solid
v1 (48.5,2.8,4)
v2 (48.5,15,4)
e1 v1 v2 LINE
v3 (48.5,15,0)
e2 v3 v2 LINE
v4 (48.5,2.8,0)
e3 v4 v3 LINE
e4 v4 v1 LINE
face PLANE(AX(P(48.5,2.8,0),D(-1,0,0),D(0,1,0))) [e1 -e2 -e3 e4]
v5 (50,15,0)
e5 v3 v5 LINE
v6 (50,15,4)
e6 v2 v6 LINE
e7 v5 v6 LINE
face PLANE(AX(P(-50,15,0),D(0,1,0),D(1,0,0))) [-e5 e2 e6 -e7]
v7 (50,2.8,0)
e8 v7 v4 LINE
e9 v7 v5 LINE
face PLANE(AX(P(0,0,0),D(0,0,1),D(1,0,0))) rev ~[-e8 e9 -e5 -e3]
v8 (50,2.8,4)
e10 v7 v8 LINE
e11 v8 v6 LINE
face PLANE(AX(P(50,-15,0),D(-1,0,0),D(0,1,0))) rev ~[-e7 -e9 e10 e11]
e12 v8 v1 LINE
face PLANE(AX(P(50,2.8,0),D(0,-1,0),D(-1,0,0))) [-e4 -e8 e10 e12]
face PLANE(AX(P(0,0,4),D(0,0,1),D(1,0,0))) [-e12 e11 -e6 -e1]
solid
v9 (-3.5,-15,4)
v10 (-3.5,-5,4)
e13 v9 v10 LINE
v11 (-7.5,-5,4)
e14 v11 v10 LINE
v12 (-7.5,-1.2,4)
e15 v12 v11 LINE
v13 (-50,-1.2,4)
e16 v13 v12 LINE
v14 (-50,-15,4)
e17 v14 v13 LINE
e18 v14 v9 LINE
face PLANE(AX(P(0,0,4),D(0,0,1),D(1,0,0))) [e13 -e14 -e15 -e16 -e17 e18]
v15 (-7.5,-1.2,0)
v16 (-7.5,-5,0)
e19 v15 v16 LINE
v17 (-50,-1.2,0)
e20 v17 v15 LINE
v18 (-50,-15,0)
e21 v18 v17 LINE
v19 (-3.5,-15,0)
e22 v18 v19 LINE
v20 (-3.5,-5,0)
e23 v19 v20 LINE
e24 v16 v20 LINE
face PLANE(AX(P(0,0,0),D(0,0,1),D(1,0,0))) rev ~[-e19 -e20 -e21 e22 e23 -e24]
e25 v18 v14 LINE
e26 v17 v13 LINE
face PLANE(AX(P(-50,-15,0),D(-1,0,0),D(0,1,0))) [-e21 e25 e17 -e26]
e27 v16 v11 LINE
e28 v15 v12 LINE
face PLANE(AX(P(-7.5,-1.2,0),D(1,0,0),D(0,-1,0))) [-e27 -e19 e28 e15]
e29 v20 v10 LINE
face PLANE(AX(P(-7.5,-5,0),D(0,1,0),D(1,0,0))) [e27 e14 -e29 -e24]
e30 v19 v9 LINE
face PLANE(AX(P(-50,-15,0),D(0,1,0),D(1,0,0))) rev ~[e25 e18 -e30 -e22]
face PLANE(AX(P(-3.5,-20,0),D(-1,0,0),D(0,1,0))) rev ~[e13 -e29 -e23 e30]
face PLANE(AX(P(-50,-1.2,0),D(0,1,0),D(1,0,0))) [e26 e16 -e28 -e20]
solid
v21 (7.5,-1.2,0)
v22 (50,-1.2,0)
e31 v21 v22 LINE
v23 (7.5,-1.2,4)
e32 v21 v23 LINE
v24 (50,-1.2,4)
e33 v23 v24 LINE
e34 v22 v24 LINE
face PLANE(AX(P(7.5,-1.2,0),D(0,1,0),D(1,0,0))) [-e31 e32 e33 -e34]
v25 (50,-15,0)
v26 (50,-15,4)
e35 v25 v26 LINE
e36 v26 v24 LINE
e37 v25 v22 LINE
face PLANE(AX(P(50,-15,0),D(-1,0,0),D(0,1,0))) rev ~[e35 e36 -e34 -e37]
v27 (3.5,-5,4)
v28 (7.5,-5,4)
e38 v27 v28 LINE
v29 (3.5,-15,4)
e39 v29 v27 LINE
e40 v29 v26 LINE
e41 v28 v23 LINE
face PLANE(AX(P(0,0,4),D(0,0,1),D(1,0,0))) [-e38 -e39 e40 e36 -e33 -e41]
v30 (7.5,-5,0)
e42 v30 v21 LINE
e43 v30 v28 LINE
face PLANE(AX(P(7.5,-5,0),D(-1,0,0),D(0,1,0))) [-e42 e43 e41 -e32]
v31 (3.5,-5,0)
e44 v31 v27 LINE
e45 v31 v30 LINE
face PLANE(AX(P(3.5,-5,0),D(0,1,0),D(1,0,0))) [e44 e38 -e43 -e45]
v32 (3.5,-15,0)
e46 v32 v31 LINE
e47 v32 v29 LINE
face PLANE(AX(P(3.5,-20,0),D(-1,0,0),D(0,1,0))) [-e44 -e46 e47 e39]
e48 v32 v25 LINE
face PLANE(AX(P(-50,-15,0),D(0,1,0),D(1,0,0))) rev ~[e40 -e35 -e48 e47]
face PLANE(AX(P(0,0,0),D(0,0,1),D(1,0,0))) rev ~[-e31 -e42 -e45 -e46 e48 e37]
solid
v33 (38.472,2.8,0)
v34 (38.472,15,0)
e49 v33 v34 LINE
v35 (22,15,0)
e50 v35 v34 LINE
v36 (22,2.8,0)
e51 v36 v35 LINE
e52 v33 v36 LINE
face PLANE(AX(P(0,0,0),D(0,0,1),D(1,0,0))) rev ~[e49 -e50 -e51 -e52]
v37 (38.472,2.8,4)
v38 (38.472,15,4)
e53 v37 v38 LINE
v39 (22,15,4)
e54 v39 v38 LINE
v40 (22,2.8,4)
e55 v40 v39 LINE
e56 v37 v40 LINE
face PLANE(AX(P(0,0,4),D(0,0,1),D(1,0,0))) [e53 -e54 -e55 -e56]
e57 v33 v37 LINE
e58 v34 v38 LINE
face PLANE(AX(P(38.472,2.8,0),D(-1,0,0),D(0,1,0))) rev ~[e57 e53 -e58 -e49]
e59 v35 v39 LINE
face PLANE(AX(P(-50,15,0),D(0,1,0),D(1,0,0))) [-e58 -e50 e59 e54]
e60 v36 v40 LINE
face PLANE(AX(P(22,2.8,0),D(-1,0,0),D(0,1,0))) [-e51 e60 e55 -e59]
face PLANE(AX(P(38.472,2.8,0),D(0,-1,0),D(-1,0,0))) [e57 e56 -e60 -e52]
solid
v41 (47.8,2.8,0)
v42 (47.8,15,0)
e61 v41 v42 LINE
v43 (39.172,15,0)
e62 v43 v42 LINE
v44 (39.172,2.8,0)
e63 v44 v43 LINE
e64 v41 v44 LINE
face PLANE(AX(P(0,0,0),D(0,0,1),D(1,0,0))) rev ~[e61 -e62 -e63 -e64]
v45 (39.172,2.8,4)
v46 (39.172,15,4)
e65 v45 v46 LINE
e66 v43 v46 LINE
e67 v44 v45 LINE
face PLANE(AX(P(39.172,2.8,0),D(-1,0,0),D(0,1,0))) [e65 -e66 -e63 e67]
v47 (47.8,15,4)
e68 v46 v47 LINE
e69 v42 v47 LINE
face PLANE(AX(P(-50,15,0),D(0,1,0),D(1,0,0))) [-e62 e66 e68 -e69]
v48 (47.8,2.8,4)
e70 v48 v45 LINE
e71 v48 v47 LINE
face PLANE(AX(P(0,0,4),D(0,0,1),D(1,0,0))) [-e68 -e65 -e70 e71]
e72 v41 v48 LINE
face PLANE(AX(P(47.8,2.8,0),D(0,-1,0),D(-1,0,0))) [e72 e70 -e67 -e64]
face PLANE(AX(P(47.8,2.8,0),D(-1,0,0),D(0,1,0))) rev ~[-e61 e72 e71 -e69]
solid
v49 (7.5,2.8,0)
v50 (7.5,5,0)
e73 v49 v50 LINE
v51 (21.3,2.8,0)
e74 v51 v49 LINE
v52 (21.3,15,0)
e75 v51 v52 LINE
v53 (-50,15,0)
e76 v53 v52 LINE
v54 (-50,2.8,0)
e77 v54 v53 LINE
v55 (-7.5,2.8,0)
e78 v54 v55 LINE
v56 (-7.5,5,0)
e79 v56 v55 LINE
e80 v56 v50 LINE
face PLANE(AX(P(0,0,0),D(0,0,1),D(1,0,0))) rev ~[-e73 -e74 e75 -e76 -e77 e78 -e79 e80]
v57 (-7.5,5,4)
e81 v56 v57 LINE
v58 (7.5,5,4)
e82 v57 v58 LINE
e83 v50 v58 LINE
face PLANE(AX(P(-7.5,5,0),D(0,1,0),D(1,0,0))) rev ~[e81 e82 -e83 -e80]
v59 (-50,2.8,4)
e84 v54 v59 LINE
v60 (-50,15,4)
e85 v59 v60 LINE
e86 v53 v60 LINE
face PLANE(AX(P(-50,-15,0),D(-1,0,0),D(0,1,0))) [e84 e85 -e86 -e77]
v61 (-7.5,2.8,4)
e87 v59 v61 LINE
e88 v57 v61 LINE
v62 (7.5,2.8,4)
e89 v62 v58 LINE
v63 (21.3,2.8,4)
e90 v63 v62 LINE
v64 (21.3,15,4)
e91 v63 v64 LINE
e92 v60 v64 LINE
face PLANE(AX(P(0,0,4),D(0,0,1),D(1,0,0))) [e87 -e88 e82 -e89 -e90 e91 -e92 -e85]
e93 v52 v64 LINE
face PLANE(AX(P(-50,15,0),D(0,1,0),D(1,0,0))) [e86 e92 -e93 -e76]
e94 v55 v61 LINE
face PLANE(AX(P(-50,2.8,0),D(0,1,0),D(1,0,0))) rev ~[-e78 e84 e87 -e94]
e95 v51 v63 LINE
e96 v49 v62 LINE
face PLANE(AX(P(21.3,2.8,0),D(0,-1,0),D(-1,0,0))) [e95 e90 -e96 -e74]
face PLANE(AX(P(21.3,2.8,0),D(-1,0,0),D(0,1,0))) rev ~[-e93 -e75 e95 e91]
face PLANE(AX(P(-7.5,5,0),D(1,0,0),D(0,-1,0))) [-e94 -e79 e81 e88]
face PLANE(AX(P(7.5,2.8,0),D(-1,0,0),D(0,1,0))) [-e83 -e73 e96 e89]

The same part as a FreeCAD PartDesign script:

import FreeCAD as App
import Part
import Sketcher
from FreeCAD import Vector
Q = App.Units.Quantity


def add_polygon(sketch, points):
    """Adds a closed chain of lines whose ends are joined by coincident constraints."""
    first, n = sketch.GeometryCount, len(points)
    for a, b in zip(points, points[1:] + points[:1]):
        sketch.addGeometry(Part.LineSegment(App.Vector(*a, 0), App.Vector(*b, 0)), False)
    for i in range(n):
        sketch.addConstraint(Sketcher.Constraint("Coincident", first + i, 2, first + (i + 1) % n, 1))

doc = App.newDocument("Part")
body = doc.addObject("PartDesign::Body", "Body")
body.AllowCompound = True

# Sketch on XY plane
sketch1 = doc.addObject("Sketcher::SketchObject", "Sketch")
body.addObject(sketch1)
sketch1.AttachmentSupport = (doc.XY_Plane, [""])
sketch1.MapMode = "FlatFace"
add_polygon(sketch1, [(-50, 15), (-50, -15), (50, -15), (50, 15)])  # lines 0-3
sketch1.addConstraint([
    Sketcher.Constraint("Vertical", 0),
    Sketcher.Constraint("Horizontal", 1),
    Sketcher.Constraint("Vertical", 2),
    Sketcher.Constraint("Horizontal", 3),
    Sketcher.Constraint("Symmetric", 0, 2, 2, 2, -1, 1),
    Sketcher.Constraint("DistanceX", 1, 1, 1, 2, Q("100 mm")),
    Sketcher.Constraint("DistanceY", 0, 2, 0, 1, Q("30 mm")),
])
pad1 = doc.addObject("PartDesign::Pad", "Pad")
body.addObject(pad1)
pad1.Profile = sketch1
pad1.Length = 4

# Sketch on XY plane
sketch2 = doc.addObject("Sketcher::SketchObject", "Sketch001")
body.addObject(sketch2)
sketch2.AttachmentSupport = (doc.XY_Plane, [""])
sketch2.MapMode = "FlatFace"
add_polygon(sketch2, [(7.5, -5), (7.5, -1.2), (50, -1.2), (50, 2.8), (48.5, 2.8), (48.5, 38.416307), (47.8, 38.416307), (47.8, 2.8), (39.172, 2.8), (39.172, 25.304163), (38.472, 25.304163), (38.472, 2.8), (22, 2.8), (22, 31.788547), (21.3, 31.788547), (21.3, 2.8), (7.5, 2.8), (7.5, 5), (-7.5, 5), (-7.5, 2.8), (-50, 2.8), (-50, -1.2), (-7.5, -1.2), (-7.5, -5), (-3.5, -5), (-3.5, -20), (3.5, -20), (3.5, -5)])  # lines 0-27
sketch2.addConstraint([
    Sketcher.Constraint("Vertical", 0),
    Sketcher.Constraint("Horizontal", 1),
    Sketcher.Constraint("Vertical", 2),
    Sketcher.Constraint("Horizontal", 3),
    Sketcher.Constraint("Vertical", 4),
    Sketcher.Constraint("Horizontal", 5),
    Sketcher.Constraint("Vertical", 6),
    Sketcher.Constraint("Horizontal", 7),
    Sketcher.Constraint("Vertical", 8),
    Sketcher.Constraint("Horizontal", 9),
    Sketcher.Constraint("Vertical", 10),
    Sketcher.Constraint("Horizontal", 11),
    Sketcher.Constraint("Vertical", 12),
    Sketcher.Constraint("Horizontal", 13),
    Sketcher.Constraint("Vertical", 14),
    Sketcher.Constraint("Horizontal", 15),
    Sketcher.Constraint("Vertical", 16),
    Sketcher.Constraint("Horizontal", 17),
    Sketcher.Constraint("Vertical", 18),
    Sketcher.Constraint("Horizontal", 19),
    Sketcher.Constraint("Vertical", 20),
    Sketcher.Constraint("Horizontal", 21),
    Sketcher.Constraint("Vertical", 22),
    Sketcher.Constraint("Horizontal", 23),
    Sketcher.Constraint("Vertical", 24),
    Sketcher.Constraint("Horizontal", 25),
    Sketcher.Constraint("Vertical", 26),
    Sketcher.Constraint("Horizontal", 27),
    Sketcher.Constraint("Symmetric", 16, 2, 22, 2, -1, 1),
    Sketcher.Constraint("Symmetric", 17, 2, 27, 2, -1, 1),
    Sketcher.Constraint("Symmetric", 15, 2, 18, 2, -2),
    Sketcher.Constraint("Symmetric", 2, 2, 19, 2, -2),
    Sketcher.Constraint("Horizontal", 3, 2, 6, 2),
    Sketcher.Constraint("Horizontal", 7, 2, 10, 2),
    Sketcher.Constraint("Horizontal", 1, 2, 20, 2),
    Sketcher.Constraint("Equal", 5, 9),
    Sketcher.Constraint("Equal", 9, 13),
    Sketcher.Constraint("Equal", 23, 27),
    Sketcher.Constraint("Equal", 27, 2),
    Sketcher.Constraint("Equal", 17, 24),
    Sketcher.Constraint("DistanceX", 17, 2, 17, 1, Q("15 mm")),
    Sketcher.Constraint("DistanceX", 23, 1, 23, 2, Q("4 mm")),
    Sketcher.Constraint("DistanceX", 1, 1, 1, 2, Q("42.5 mm")),
    Sketcher.Constraint("DistanceX", 3, 2, 3, 1, Q("1.5 mm")),
    Sketcher.Constraint("DistanceX", 5, 2, 5, 1, Q("0.7 mm")),
    Sketcher.Constraint("DistanceX", 15, 2, 15, 1, Q("13.8 mm")),
    Sketcher.Constraint("DistanceY", 0, 1, 0, 2, Q("3.8 mm")),
    Sketcher.Constraint("DistanceY", 16, 1, 16, 2, Q("2.2 mm")),
    Sketcher.Constraint("DistanceX", 7, 2, 7, 1, Q("8.628 mm")),
    Sketcher.Constraint("DistanceY", 4, 1, 4, 2, Q("35.616307 mm")),
    Sketcher.Constraint("DistanceY", 8, 1, 8, 2, Q("22.504163 mm")),
    Sketcher.Constraint("DistanceY", 12, 1, 12, 2, Q("28.988547 mm")),
])
pocket1 = doc.addObject("PartDesign::Pocket", "Pocket")
body.addObject(pocket1)
pocket1.Profile = sketch2
pocket1.Length = 4
pocket1.Reversed = True

doc.recompute()
